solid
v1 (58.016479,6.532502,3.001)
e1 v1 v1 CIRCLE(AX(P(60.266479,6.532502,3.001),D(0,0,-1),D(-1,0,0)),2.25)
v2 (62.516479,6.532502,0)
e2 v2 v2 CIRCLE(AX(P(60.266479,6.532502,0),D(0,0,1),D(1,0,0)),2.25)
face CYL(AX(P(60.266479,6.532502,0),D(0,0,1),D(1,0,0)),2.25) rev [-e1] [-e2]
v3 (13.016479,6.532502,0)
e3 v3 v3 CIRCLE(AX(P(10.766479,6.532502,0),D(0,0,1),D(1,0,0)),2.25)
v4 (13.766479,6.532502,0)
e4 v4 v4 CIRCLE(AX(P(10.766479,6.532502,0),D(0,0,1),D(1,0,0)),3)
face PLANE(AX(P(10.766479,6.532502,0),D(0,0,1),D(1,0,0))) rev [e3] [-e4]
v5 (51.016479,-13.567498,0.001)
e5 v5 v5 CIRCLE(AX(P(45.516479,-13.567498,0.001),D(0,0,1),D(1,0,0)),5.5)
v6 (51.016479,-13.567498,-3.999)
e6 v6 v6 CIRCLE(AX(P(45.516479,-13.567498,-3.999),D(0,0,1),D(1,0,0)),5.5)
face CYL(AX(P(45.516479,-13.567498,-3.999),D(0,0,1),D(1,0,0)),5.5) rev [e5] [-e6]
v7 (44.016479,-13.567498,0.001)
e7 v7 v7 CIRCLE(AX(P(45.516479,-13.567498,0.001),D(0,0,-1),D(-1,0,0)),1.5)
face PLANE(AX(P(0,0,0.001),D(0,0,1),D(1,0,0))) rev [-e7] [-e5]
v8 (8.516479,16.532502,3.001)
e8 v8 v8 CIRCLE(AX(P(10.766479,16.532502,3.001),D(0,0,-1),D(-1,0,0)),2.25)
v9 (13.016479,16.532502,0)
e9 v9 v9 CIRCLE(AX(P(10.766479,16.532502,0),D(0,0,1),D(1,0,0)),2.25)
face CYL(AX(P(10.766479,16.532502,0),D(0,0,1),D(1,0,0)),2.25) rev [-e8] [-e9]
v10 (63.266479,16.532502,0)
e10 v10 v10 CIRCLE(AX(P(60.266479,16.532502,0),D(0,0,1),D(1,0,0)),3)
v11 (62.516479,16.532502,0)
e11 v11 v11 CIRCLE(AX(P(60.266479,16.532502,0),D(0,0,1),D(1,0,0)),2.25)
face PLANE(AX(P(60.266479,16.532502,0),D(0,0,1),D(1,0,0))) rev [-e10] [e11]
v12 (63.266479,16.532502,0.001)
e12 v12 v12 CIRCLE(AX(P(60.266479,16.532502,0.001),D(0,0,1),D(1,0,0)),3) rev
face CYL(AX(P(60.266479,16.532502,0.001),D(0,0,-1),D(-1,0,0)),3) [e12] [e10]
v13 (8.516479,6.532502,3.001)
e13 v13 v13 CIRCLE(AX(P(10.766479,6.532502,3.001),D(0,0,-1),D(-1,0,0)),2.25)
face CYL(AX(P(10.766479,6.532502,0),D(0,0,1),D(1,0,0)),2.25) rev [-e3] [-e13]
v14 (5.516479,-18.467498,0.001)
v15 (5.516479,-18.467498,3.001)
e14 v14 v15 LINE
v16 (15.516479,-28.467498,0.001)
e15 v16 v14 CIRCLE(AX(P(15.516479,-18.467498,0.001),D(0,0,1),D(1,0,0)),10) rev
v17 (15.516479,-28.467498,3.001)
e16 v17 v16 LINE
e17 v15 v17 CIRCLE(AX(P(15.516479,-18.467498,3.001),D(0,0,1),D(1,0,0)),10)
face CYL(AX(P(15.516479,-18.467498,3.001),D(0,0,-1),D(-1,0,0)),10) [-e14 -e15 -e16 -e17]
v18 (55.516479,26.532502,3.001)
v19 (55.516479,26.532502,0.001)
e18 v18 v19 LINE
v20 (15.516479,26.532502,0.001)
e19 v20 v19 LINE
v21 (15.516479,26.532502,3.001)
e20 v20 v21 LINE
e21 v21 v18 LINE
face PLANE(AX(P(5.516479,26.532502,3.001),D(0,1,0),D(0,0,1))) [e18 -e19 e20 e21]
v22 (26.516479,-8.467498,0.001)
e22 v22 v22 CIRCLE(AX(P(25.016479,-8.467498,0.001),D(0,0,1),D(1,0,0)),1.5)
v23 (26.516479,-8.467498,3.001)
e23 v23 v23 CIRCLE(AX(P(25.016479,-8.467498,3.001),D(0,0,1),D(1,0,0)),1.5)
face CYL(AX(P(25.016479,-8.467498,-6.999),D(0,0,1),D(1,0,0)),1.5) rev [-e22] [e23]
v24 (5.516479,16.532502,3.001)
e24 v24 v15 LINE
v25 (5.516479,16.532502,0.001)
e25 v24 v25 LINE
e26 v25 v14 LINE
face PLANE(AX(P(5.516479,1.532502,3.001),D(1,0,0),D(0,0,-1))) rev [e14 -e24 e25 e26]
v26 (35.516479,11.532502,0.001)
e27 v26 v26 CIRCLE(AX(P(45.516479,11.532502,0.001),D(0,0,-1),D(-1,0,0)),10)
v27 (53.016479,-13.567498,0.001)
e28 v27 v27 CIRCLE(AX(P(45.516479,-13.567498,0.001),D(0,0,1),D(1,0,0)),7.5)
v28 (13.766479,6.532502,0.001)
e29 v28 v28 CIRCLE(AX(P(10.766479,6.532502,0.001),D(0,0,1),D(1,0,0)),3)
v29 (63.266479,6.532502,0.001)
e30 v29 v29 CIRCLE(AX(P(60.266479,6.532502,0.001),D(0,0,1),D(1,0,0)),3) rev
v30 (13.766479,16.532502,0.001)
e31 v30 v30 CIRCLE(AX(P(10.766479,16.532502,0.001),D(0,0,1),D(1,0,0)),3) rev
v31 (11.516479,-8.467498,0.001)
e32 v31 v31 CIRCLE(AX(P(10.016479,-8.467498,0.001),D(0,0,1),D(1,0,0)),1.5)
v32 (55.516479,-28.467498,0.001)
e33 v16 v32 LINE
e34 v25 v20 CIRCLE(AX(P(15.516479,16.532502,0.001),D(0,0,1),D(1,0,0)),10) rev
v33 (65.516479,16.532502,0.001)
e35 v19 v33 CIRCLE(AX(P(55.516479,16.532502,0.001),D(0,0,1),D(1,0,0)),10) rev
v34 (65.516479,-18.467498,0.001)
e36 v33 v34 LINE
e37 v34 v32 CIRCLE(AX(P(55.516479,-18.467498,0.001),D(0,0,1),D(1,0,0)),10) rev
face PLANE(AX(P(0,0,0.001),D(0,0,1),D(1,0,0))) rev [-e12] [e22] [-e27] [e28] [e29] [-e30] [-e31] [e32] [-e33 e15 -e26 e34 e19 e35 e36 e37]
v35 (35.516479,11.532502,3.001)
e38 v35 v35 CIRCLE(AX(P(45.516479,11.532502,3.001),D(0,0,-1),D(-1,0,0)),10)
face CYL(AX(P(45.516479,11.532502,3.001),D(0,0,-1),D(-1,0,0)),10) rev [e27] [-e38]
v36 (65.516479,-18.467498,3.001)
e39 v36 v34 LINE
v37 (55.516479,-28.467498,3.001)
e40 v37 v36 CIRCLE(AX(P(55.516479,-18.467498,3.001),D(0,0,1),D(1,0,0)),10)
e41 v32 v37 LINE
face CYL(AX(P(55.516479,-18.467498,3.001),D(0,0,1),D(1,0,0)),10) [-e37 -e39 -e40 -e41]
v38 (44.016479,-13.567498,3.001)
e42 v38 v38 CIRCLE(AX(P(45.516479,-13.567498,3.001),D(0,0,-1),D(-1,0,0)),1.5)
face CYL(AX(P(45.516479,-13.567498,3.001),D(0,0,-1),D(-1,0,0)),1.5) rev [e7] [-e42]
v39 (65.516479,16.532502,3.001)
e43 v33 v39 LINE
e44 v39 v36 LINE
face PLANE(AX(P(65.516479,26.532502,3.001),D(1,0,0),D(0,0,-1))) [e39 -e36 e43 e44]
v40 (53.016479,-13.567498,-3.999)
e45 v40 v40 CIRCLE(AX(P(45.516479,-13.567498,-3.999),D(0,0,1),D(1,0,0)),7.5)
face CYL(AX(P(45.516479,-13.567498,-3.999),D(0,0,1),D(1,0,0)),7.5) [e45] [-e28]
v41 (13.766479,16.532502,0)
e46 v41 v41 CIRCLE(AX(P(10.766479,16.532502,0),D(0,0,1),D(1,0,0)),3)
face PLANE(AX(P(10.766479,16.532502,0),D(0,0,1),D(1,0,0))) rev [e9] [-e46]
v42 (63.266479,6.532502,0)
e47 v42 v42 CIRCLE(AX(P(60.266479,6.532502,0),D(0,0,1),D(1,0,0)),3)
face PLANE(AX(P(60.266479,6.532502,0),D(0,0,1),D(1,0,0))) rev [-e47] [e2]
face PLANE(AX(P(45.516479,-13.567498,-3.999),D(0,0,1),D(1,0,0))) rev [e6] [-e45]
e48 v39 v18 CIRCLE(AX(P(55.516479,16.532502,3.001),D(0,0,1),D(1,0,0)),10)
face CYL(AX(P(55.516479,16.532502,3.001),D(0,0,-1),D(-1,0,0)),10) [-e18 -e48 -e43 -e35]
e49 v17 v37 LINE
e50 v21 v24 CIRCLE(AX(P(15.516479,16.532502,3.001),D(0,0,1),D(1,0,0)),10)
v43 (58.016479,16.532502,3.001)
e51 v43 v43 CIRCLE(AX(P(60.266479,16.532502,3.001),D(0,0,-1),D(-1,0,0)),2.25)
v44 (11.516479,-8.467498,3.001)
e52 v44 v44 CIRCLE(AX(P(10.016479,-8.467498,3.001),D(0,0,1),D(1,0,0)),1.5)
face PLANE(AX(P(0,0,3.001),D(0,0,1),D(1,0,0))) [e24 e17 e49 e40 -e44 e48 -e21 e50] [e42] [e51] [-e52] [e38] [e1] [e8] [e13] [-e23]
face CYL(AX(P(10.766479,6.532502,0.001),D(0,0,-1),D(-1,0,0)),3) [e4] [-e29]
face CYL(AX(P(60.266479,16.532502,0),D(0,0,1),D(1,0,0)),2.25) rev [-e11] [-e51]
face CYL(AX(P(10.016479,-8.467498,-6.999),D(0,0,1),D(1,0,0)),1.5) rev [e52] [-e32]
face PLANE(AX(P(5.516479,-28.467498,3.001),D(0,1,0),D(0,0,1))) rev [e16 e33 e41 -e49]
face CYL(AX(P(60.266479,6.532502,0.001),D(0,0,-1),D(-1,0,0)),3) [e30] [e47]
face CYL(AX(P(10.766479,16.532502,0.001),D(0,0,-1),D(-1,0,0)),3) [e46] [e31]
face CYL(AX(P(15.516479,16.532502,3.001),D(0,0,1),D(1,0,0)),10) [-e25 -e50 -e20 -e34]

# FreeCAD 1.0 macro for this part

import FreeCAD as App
import Part
import Sketcher

V = App.Vector
Q = App.Units.Quantity


def edges_at(feature, points):
    """Names of the edges that pass closest to the given points."""
    edges = feature.Shape.Edges
    near = lambda p: min(range(len(edges)), key=lambda i: edges[i].distToShape(Part.Vertex(*p))[0])
    return sorted({f"Edge{near(p) + 1}" for p in points})

doc = App.newDocument("Part")
params = doc.addObject("Spreadsheet::Sheet", "Params")
for row, (alias, value) in enumerate([
    ("sketch1_diameter", "6 mm"),
    ("pad1_length", "0.001 mm"),
    ("sketch2_diameter", "6 mm"),
    ("pad2_length", "0.001 mm"),
    ("sketch3_diameter", "6 mm"),
    ("pad3_length", "0.001 mm"),
    ("sketch4_diameter", "6 mm"),
    ("pad4_length", "0.001 mm"),
    ("sketch5_diameter", "4.5 mm"),
    ("pad5_length", "1 mm"),
    ("pad5_length2", "1.001 mm"),
    ("sketch6_width", "60 mm"),
    ("sketch6_height", "55 mm"),
    ("pad6_length", "3 mm"),
    ("sketch7_diameter", "20 mm"),
    ("sketch7_diameter2", "4.5 mm"),
    ("pocket1_length", "3 mm"),
    ("sketch8_diameter", "20 mm"),
    ("sketch8_diameter2", "3 mm"),
    ("pocket2_length", "3 mm"),
    ("sketch9_diameter", "3 mm"),
    ("pocket3_length", "10 mm"),
    ("sketch10_diameter", "15 mm"),
    ("sketch10_diameter2", "11 mm"),
    ("pad7_length", "7 mm"),
    ("fillet_radius", "10 mm"),
], start=1):
    params.set(f"A{row}", alias)
    params.set(f"B{row}", "=" + value)
    params.setAlias(f"B{row}", alias)

body = doc.addObject("PartDesign::Body", "Body")

sketch1 = body.newObject("Sketcher::SketchObject", "Sketch")
sketch1.AttachmentSupport = (doc.getObject("XY_Plane"), [""])
sketch1.MapMode = "FlatFace"
sketch1.addGeometry(Part.Circle(V(60.266479, 16.532502, 0), V(0, 0, 1), 3), False)
sketch1.addConstraint([
    Sketcher.Constraint("Diameter", 0, Q("6 mm")),
    Sketcher.Constraint("DistanceY", -1, 1, 0, 3, Q("16.532502 mm")),
    Sketcher.Constraint("DistanceX", -1, 1, 0, 3, Q("60.266479 mm")),
])
sketch1.setExpression("Constraints[0]", "Params.sketch1_diameter")
pad1 = body.newObject("PartDesign::Pad", "Pad")
pad1.Profile = sketch1
pad1.setExpression("Length", "Params.pad1_length")
body2 = doc.addObject("PartDesign::Body", "Body001")

sketch2 = body2.newObject("Sketcher::SketchObject", "Sketch001")
sketch2.AttachmentSupport = (doc.getObject("XY_Plane001"), [""])
sketch2.MapMode = "FlatFace"
sketch2.addGeometry(Part.Circle(V(60.266479, 6.532502, 0), V(0, 0, 1), 3), False)
sketch2.addConstraint([
    Sketcher.Constraint("Diameter", 0, Q("6 mm")),
    Sketcher.Constraint("DistanceY", -1, 1, 0, 3, Q("6.532502 mm")),
    Sketcher.Constraint("DistanceX", -1, 1, 0, 3, Q("60.266479 mm")),
])
sketch2.setExpression("Constraints[0]", "Params.sketch2_diameter")
pad2 = body2.newObject("PartDesign::Pad", "Pad001")
pad2.Profile = sketch2
pad2.setExpression("Length", "Params.pad2_length")
body3 = doc.addObject("PartDesign::Body", "Body002")

sketch3 = body3.newObject("Sketcher::SketchObject", "Sketch002")
sketch3.AttachmentSupport = (doc.getObject("XY_Plane002"), [""])
sketch3.MapMode = "FlatFace"
sketch3.addGeometry(Part.Circle(V(10.766479, 6.532502, 0), V(0, 0, 1), 3), False)
sketch3.addConstraint([
    Sketcher.Constraint("Diameter", 0, Q("6 mm")),
    Sketcher.Constraint("DistanceY", -1, 1, 0, 3, Q("6.532502 mm")),
    Sketcher.Constraint("DistanceX", -1, 1, 0, 3, Q("10.766479 mm")),
])
sketch3.setExpression("Constraints[0]", "Params.sketch3_diameter")
pad3 = body3.newObject("PartDesign::Pad", "Pad002")
pad3.Profile = sketch3
pad3.setExpression("Length", "Params.pad3_length")
body4 = doc.addObject("PartDesign::Body", "Body003")

sketch4 = body4.newObject("Sketcher::SketchObject", "Sketch003")
sketch4.AttachmentSupport = (doc.getObject("XY_Plane003"), [""])
sketch4.MapMode = "FlatFace"
sketch4.addGeometry(Part.Circle(V(10.766479, 16.532502, 0), V(0, 0, 1), 3), False)
sketch4.addConstraint([
    Sketcher.Constraint("Diameter", 0, Q("6 mm")),
    Sketcher.Constraint("DistanceY", -1, 1, 0, 3, Q("16.532502 mm")),
    Sketcher.Constraint("DistanceX", -1, 1, 0, 3, Q("10.766479 mm")),
])
sketch4.setExpression("Constraints[0]", "Params.sketch4_diameter")
pad4 = body4.newObject("PartDesign::Pad", "Pad003")
pad4.Profile = sketch4
pad4.setExpression("Length", "Params.pad4_length")
body5 = doc.addObject("PartDesign::Body", "Body004")
body5.AllowCompound = True

sketch5 = body5.newObject("Sketcher::SketchObject", "Sketch004")
sketch5.AttachmentSupport = (doc.getObject("XY_Plane004"), [""])
sketch5.MapMode = "FlatFace"
sketch5.AttachmentOffset = App.Placement(V(0, 0, 0.001), App.Rotation())
sketch5.addGeometry([
    Part.Circle(V(10.766479, 16.532502, 0), V(0, 0, 1), 2.25),
    Part.Circle(V(10.766479, 6.532502, 0), V(0, 0, 1), 2.25),
    Part.Circle(V(60.266479, 16.532502, 0), V(0, 0, 1), 2.25),
    Part.Circle(V(60.266479, 6.532502, 0), V(0, 0, 1), 2.25),
], False)
sketch5.addConstraint([
    Sketcher.Constraint("Equal", 0, 1),
    Sketcher.Constraint("Equal", 1, 2),
    Sketcher.Constraint("Equal", 2, 3),
    Sketcher.Constraint("Horizontal", 0, 3, 2, 3),
    Sketcher.Constraint("Horizontal", 1, 3, 3, 3),
    Sketcher.Constraint("Vertical", 0, 3, 1, 3),
    Sketcher.Constraint("Vertical", 2, 3, 3, 3),
    Sketcher.Constraint("Diameter", 0, Q("4.5 mm")),
    Sketcher.Constraint("DistanceY", 1, 3, 0, 3, Q("10 mm")),
    Sketcher.Constraint("DistanceX", 0, 3, 2, 3, Q("49.5 mm")),
    Sketcher.Constraint("DistanceY", -1, 1, 0, 3, Q("16.532502 mm")),
    Sketcher.Constraint("DistanceX", -1, 1, 0, 3, Q("10.766479 mm")),
])
sketch5.setExpression("Constraints[7]", "Params.sketch5_diameter")
pad5 = body5.newObject("PartDesign::Pad", "Pad004")
pad5.Profile = sketch5
pad5.Type = "TwoLengths"
pad5.setExpression("Length", "Params.pad5_length")
pad5.setExpression("Length2", "Params.pad5_length2")
doc.recompute()

body6 = doc.addObject("PartDesign::Body", "Body005")
body6.BaseFeature = body5
boolean = body.newObject("PartDesign::Boolean", "Boolean")
boolean.Type = "Cut"
boolean.addObjects([body6])
doc.recompute()

body7 = doc.addObject("PartDesign::Body", "Body006")
body7.BaseFeature = body5
boolean2 = body2.newObject("PartDesign::Boolean", "Boolean001")
boolean2.Type = "Cut"
boolean2.addObjects([body7])
doc.recompute()

body8 = doc.addObject("PartDesign::Body", "Body007")
body8.BaseFeature = body5
boolean3 = body3.newObject("PartDesign::Boolean", "Boolean002")
boolean3.Type = "Cut"
boolean3.addObjects([body8])
doc.recompute()

boolean4 = body4.newObject("PartDesign::Boolean", "Boolean003")
boolean4.Type = "Cut"
boolean4.addObjects([body5])
body.AllowCompound = True
doc.recompute()

boolean5 = body.newObject("PartDesign::Boolean", "Boolean004")
boolean5.Type = "Fuse"
boolean5.addObjects([body2])
doc.recompute()

boolean6 = body.newObject("PartDesign::Boolean", "Boolean005")
boolean6.Type = "Fuse"
boolean6.addObjects([body3])
doc.recompute()

boolean7 = body.newObject("PartDesign::Boolean", "Boolean006")
boolean7.Type = "Fuse"
boolean7.addObjects([body4])

sketch6 = body.newObject("Sketcher::SketchObject", "Sketch005")
sketch6.AttachmentSupport = (doc.getObject("XY_Plane"), [""])
sketch6.MapMode = "FlatFace"
sketch6.AttachmentOffset = App.Placement(V(0, 0, 0.001), App.Rotation())
sketch6.addGeometry([
    Part.LineSegment(V(65.516479, 26.532502, 0), V(5.516479, 26.532502, 0)),
    Part.LineSegment(V(5.516479, 26.532502, 0), V(5.516479, -28.467498, 0)),
    Part.LineSegment(V(5.516479, -28.467498, 0), V(65.516479, -28.467498, 0)),
    Part.LineSegment(V(65.516479, -28.467498, 0), V(65.516479, 26.532502, 0)),
], False)
sketch6.addConstraint([
    Sketcher.Constraint("Coincident", 0, 2, 1, 1),
    Sketcher.Constraint("Coincident", 1, 2, 2, 1),
    Sketcher.Constraint("Coincident", 2, 2, 3, 1),
    Sketcher.Constraint("Coincident", 3, 2, 0, 1),
    Sketcher.Constraint("Horizontal", 0),
    Sketcher.Constraint("Vertical", 1),
    Sketcher.Constraint("Horizontal", 2),
    Sketcher.Constraint("Vertical", 3),
    Sketcher.Constraint("DistanceX", 0, 2, 0, 1, Q("60 mm")),
    Sketcher.Constraint("DistanceY", 1, 2, 1, 1, Q("55 mm")),
    Sketcher.Constraint("DistanceY", -1, 1, 0, 2, Q("26.532502 mm")),
    Sketcher.Constraint("DistanceX", -1, 1, 0, 2, Q("5.516479 mm")),
])
sketch6.setExpression("Constraints[8]", "Params.sketch6_width")
sketch6.setExpression("Constraints[9]", "Params.sketch6_height")
pad6 = body.newObject("PartDesign::Pad", "Pad005")
pad6.Profile = sketch6
pad6.setExpression("Length", "Params.pad6_length")

sketch7 = body.newObject("Sketcher::SketchObject", "Sketch006")
sketch7.AttachmentSupport = (doc.getObject("XY_Plane"), [""])
sketch7.MapMode = "FlatFace"
sketch7.AttachmentOffset = App.Placement(V(0, 0, 0.001), App.Rotation())
sketch7.addGeometry([
    Part.Circle(V(60.266479, 6.532502, 0), V(0, 0, 1), 2.25),
    Part.Circle(V(60.266479, 16.532502, 0), V(0, 0, 1), 2.25),
    Part.Circle(V(10.766479, 6.532502, 0), V(0, 0, 1), 2.25),
    Part.Circle(V(10.766479, 16.532502, 0), V(0, 0, 1), 2.25),
    Part.Circle(V(45.516479, 11.532502, 0), V(0, 0, 1), 10),
], False)
sketch7.addConstraint([
    Sketcher.Constraint("Equal", 0, 1),
    Sketcher.Constraint("Equal", 1, 2),
    Sketcher.Constraint("Equal", 2, 3),
    Sketcher.Constraint("Horizontal", 0, 3, 2, 3),
    Sketcher.Constraint("Horizontal", 1, 3, 3, 3),
    Sketcher.Constraint("Vertical", 0, 3, 1, 3),
    Sketcher.Constraint("Vertical", 2, 3, 3, 3),
    Sketcher.Constraint("Diameter", 4, Q("20 mm")),
    Sketcher.Constraint("Diameter", 0, Q("4.5 mm")),
    Sketcher.Constraint("DistanceY", 0, 3, 1, 3, Q("10 mm")),
    Sketcher.Constraint("DistanceY", 0, 3, 4, 3, Q("5 mm")),
    Sketcher.Constraint("DistanceX", 2, 3, 0, 3, Q("49.5 mm")),
    Sketcher.Constraint("DistanceX", 4, 3, 0, 3, Q("14.75 mm")),
    Sketcher.Constraint("DistanceY", -1, 1, 0, 3, Q("6.532502 mm")),
    Sketcher.Constraint("DistanceX", -1, 1, 0, 3, Q("60.266479 mm")),
])
sketch7.setExpression("Constraints[7]", "Params.sketch7_diameter")
sketch7.setExpression("Constraints[8]", "Params.sketch7_diameter2")
pocket1 = body.newObject("PartDesign::Pocket", "Pocket")
pocket1.Profile = sketch7
pocket1.setExpression("Length", "Params.pocket1_length")
pocket1.Reversed = True

sketch8 = body.newObject("Sketcher::SketchObject", "Sketch007")
sketch8.AttachmentSupport = (doc.getObject("XY_Plane"), [""])
sketch8.MapMode = "FlatFace"
sketch8.AttachmentOffset = App.Placement(V(0, 0, 0.001), App.Rotation())
sketch8.addGeometry([
    Part.Circle(V(45.516479, 11.532502, 0), V(0, 0, 1), 10),
    Part.Circle(V(45.516479, -13.567498, 0), V(0, 0, 1), 1.5),
], False)
sketch8.addConstraint([
    Sketcher.Constraint("Vertical", 0, 3, 1, 3),
    Sketcher.Constraint("Diameter", 0, Q("20 mm")),
    Sketcher.Constraint("Diameter", 1, Q("3 mm")),
    Sketcher.Constraint("DistanceY", 1, 3, 0, 3, Q("25.1 mm")),
    Sketcher.Constraint("DistanceY", -1, 1, 0, 3, Q("11.532502 mm")),
    Sketcher.Constraint("DistanceX", -1, 1, 0, 3, Q("45.516479 mm")),
])
sketch8.setExpression("Constraints[1]", "Params.sketch8_diameter")
sketch8.setExpression("Constraints[2]", "Params.sketch8_diameter2")
pocket2 = body.newObject("PartDesign::Pocket", "Pocket001")
pocket2.Profile = sketch8
pocket2.setExpression("Length", "Params.pocket2_length")
pocket2.Reversed = True

sketch9 = body.newObject("Sketcher::SketchObject", "Sketch008")
sketch9.AttachmentSupport = (doc.getObject("XY_Plane"), [""])
sketch9.MapMode = "FlatFace"
sketch9.AttachmentOffset = App.Placement(V(0, 0, 3.001), App.Rotation())
sketch9.addGeometry([
    Part.Circle(V(10.016479, -8.467498, 0), V(0, 0, 1), 1.5),
    Part.Circle(V(25.016479, -8.467498, 0), V(0, 0, 1), 1.5),
], False)
sketch9.addConstraint([
    Sketcher.Constraint("Equal", 0, 1),
    Sketcher.Constraint("Horizontal", 0, 3, 1, 3),
    Sketcher.Constraint("Diameter", 0, Q("3 mm")),
    Sketcher.Constraint("DistanceX", 0, 3, 1, 3, Q("15 mm")),
    Sketcher.Constraint("DistanceY", 0, 3, -1, 1, Q("8.467498 mm")),
    Sketcher.Constraint("DistanceX", -1, 1, 0, 3, Q("10.016479 mm")),
])
sketch9.setExpression("Constraints[2]", "Params.sketch9_diameter")
pocket3 = body.newObject("PartDesign::Pocket", "Pocket002")
pocket3.Profile = sketch9
pocket3.setExpression("Length", "Params.pocket3_length")

sketch10 = body.newObject("Sketcher::SketchObject", "Sketch009")
sketch10.AttachmentSupport = (doc.getObject("XY_Plane"), [""])
sketch10.MapMode = "FlatFace"
sketch10.AttachmentOffset = App.Placement(V(0, 0, 3.001), App.Rotation())
sketch10.addGeometry([
    Part.Circle(V(45.516479, -13.567498, 0), V(0, 0, 1), 7.5),
    Part.Circle(V(45.516479, -13.567498, 0), V(0, 0, 1), 5.5),
], False)
sketch10.addConstraint([
    Sketcher.Constraint("Coincident", 1, 3, 0, 3),
    Sketcher.Constraint("Diameter", 0, Q("15 mm")),
    Sketcher.Constraint("Diameter", 1, Q("11 mm")),
    Sketcher.Constraint("DistanceY", 0, 3, -1, 1, Q("13.567498 mm")),
    Sketcher.Constraint("DistanceX", -1, 1, 0, 3, Q("45.516479 mm")),
])
sketch10.setExpression("Constraints[1]", "Params.sketch10_diameter")
sketch10.setExpression("Constraints[2]", "Params.sketch10_diameter2")
pad7 = body.newObject("PartDesign::Pad", "Pad006")
pad7.Profile = sketch10
pad7.setExpression("Length", "Params.pad7_length")
pad7.Reversed = True
doc.recompute()

fillet = body.newObject("PartDesign::Fillet", "Fillet")
fillet.Base = (pad7, edges_at(pad7, [
    (5.516, 26.533, 1.501),
    (5.516, -28.467, 1.501),
    (65.516, -28.467, 1.501),
    (65.516, 26.533, 1.501),
]))
fillet.setExpression("Radius", "Params.fillet_radius")

doc.recompute()
